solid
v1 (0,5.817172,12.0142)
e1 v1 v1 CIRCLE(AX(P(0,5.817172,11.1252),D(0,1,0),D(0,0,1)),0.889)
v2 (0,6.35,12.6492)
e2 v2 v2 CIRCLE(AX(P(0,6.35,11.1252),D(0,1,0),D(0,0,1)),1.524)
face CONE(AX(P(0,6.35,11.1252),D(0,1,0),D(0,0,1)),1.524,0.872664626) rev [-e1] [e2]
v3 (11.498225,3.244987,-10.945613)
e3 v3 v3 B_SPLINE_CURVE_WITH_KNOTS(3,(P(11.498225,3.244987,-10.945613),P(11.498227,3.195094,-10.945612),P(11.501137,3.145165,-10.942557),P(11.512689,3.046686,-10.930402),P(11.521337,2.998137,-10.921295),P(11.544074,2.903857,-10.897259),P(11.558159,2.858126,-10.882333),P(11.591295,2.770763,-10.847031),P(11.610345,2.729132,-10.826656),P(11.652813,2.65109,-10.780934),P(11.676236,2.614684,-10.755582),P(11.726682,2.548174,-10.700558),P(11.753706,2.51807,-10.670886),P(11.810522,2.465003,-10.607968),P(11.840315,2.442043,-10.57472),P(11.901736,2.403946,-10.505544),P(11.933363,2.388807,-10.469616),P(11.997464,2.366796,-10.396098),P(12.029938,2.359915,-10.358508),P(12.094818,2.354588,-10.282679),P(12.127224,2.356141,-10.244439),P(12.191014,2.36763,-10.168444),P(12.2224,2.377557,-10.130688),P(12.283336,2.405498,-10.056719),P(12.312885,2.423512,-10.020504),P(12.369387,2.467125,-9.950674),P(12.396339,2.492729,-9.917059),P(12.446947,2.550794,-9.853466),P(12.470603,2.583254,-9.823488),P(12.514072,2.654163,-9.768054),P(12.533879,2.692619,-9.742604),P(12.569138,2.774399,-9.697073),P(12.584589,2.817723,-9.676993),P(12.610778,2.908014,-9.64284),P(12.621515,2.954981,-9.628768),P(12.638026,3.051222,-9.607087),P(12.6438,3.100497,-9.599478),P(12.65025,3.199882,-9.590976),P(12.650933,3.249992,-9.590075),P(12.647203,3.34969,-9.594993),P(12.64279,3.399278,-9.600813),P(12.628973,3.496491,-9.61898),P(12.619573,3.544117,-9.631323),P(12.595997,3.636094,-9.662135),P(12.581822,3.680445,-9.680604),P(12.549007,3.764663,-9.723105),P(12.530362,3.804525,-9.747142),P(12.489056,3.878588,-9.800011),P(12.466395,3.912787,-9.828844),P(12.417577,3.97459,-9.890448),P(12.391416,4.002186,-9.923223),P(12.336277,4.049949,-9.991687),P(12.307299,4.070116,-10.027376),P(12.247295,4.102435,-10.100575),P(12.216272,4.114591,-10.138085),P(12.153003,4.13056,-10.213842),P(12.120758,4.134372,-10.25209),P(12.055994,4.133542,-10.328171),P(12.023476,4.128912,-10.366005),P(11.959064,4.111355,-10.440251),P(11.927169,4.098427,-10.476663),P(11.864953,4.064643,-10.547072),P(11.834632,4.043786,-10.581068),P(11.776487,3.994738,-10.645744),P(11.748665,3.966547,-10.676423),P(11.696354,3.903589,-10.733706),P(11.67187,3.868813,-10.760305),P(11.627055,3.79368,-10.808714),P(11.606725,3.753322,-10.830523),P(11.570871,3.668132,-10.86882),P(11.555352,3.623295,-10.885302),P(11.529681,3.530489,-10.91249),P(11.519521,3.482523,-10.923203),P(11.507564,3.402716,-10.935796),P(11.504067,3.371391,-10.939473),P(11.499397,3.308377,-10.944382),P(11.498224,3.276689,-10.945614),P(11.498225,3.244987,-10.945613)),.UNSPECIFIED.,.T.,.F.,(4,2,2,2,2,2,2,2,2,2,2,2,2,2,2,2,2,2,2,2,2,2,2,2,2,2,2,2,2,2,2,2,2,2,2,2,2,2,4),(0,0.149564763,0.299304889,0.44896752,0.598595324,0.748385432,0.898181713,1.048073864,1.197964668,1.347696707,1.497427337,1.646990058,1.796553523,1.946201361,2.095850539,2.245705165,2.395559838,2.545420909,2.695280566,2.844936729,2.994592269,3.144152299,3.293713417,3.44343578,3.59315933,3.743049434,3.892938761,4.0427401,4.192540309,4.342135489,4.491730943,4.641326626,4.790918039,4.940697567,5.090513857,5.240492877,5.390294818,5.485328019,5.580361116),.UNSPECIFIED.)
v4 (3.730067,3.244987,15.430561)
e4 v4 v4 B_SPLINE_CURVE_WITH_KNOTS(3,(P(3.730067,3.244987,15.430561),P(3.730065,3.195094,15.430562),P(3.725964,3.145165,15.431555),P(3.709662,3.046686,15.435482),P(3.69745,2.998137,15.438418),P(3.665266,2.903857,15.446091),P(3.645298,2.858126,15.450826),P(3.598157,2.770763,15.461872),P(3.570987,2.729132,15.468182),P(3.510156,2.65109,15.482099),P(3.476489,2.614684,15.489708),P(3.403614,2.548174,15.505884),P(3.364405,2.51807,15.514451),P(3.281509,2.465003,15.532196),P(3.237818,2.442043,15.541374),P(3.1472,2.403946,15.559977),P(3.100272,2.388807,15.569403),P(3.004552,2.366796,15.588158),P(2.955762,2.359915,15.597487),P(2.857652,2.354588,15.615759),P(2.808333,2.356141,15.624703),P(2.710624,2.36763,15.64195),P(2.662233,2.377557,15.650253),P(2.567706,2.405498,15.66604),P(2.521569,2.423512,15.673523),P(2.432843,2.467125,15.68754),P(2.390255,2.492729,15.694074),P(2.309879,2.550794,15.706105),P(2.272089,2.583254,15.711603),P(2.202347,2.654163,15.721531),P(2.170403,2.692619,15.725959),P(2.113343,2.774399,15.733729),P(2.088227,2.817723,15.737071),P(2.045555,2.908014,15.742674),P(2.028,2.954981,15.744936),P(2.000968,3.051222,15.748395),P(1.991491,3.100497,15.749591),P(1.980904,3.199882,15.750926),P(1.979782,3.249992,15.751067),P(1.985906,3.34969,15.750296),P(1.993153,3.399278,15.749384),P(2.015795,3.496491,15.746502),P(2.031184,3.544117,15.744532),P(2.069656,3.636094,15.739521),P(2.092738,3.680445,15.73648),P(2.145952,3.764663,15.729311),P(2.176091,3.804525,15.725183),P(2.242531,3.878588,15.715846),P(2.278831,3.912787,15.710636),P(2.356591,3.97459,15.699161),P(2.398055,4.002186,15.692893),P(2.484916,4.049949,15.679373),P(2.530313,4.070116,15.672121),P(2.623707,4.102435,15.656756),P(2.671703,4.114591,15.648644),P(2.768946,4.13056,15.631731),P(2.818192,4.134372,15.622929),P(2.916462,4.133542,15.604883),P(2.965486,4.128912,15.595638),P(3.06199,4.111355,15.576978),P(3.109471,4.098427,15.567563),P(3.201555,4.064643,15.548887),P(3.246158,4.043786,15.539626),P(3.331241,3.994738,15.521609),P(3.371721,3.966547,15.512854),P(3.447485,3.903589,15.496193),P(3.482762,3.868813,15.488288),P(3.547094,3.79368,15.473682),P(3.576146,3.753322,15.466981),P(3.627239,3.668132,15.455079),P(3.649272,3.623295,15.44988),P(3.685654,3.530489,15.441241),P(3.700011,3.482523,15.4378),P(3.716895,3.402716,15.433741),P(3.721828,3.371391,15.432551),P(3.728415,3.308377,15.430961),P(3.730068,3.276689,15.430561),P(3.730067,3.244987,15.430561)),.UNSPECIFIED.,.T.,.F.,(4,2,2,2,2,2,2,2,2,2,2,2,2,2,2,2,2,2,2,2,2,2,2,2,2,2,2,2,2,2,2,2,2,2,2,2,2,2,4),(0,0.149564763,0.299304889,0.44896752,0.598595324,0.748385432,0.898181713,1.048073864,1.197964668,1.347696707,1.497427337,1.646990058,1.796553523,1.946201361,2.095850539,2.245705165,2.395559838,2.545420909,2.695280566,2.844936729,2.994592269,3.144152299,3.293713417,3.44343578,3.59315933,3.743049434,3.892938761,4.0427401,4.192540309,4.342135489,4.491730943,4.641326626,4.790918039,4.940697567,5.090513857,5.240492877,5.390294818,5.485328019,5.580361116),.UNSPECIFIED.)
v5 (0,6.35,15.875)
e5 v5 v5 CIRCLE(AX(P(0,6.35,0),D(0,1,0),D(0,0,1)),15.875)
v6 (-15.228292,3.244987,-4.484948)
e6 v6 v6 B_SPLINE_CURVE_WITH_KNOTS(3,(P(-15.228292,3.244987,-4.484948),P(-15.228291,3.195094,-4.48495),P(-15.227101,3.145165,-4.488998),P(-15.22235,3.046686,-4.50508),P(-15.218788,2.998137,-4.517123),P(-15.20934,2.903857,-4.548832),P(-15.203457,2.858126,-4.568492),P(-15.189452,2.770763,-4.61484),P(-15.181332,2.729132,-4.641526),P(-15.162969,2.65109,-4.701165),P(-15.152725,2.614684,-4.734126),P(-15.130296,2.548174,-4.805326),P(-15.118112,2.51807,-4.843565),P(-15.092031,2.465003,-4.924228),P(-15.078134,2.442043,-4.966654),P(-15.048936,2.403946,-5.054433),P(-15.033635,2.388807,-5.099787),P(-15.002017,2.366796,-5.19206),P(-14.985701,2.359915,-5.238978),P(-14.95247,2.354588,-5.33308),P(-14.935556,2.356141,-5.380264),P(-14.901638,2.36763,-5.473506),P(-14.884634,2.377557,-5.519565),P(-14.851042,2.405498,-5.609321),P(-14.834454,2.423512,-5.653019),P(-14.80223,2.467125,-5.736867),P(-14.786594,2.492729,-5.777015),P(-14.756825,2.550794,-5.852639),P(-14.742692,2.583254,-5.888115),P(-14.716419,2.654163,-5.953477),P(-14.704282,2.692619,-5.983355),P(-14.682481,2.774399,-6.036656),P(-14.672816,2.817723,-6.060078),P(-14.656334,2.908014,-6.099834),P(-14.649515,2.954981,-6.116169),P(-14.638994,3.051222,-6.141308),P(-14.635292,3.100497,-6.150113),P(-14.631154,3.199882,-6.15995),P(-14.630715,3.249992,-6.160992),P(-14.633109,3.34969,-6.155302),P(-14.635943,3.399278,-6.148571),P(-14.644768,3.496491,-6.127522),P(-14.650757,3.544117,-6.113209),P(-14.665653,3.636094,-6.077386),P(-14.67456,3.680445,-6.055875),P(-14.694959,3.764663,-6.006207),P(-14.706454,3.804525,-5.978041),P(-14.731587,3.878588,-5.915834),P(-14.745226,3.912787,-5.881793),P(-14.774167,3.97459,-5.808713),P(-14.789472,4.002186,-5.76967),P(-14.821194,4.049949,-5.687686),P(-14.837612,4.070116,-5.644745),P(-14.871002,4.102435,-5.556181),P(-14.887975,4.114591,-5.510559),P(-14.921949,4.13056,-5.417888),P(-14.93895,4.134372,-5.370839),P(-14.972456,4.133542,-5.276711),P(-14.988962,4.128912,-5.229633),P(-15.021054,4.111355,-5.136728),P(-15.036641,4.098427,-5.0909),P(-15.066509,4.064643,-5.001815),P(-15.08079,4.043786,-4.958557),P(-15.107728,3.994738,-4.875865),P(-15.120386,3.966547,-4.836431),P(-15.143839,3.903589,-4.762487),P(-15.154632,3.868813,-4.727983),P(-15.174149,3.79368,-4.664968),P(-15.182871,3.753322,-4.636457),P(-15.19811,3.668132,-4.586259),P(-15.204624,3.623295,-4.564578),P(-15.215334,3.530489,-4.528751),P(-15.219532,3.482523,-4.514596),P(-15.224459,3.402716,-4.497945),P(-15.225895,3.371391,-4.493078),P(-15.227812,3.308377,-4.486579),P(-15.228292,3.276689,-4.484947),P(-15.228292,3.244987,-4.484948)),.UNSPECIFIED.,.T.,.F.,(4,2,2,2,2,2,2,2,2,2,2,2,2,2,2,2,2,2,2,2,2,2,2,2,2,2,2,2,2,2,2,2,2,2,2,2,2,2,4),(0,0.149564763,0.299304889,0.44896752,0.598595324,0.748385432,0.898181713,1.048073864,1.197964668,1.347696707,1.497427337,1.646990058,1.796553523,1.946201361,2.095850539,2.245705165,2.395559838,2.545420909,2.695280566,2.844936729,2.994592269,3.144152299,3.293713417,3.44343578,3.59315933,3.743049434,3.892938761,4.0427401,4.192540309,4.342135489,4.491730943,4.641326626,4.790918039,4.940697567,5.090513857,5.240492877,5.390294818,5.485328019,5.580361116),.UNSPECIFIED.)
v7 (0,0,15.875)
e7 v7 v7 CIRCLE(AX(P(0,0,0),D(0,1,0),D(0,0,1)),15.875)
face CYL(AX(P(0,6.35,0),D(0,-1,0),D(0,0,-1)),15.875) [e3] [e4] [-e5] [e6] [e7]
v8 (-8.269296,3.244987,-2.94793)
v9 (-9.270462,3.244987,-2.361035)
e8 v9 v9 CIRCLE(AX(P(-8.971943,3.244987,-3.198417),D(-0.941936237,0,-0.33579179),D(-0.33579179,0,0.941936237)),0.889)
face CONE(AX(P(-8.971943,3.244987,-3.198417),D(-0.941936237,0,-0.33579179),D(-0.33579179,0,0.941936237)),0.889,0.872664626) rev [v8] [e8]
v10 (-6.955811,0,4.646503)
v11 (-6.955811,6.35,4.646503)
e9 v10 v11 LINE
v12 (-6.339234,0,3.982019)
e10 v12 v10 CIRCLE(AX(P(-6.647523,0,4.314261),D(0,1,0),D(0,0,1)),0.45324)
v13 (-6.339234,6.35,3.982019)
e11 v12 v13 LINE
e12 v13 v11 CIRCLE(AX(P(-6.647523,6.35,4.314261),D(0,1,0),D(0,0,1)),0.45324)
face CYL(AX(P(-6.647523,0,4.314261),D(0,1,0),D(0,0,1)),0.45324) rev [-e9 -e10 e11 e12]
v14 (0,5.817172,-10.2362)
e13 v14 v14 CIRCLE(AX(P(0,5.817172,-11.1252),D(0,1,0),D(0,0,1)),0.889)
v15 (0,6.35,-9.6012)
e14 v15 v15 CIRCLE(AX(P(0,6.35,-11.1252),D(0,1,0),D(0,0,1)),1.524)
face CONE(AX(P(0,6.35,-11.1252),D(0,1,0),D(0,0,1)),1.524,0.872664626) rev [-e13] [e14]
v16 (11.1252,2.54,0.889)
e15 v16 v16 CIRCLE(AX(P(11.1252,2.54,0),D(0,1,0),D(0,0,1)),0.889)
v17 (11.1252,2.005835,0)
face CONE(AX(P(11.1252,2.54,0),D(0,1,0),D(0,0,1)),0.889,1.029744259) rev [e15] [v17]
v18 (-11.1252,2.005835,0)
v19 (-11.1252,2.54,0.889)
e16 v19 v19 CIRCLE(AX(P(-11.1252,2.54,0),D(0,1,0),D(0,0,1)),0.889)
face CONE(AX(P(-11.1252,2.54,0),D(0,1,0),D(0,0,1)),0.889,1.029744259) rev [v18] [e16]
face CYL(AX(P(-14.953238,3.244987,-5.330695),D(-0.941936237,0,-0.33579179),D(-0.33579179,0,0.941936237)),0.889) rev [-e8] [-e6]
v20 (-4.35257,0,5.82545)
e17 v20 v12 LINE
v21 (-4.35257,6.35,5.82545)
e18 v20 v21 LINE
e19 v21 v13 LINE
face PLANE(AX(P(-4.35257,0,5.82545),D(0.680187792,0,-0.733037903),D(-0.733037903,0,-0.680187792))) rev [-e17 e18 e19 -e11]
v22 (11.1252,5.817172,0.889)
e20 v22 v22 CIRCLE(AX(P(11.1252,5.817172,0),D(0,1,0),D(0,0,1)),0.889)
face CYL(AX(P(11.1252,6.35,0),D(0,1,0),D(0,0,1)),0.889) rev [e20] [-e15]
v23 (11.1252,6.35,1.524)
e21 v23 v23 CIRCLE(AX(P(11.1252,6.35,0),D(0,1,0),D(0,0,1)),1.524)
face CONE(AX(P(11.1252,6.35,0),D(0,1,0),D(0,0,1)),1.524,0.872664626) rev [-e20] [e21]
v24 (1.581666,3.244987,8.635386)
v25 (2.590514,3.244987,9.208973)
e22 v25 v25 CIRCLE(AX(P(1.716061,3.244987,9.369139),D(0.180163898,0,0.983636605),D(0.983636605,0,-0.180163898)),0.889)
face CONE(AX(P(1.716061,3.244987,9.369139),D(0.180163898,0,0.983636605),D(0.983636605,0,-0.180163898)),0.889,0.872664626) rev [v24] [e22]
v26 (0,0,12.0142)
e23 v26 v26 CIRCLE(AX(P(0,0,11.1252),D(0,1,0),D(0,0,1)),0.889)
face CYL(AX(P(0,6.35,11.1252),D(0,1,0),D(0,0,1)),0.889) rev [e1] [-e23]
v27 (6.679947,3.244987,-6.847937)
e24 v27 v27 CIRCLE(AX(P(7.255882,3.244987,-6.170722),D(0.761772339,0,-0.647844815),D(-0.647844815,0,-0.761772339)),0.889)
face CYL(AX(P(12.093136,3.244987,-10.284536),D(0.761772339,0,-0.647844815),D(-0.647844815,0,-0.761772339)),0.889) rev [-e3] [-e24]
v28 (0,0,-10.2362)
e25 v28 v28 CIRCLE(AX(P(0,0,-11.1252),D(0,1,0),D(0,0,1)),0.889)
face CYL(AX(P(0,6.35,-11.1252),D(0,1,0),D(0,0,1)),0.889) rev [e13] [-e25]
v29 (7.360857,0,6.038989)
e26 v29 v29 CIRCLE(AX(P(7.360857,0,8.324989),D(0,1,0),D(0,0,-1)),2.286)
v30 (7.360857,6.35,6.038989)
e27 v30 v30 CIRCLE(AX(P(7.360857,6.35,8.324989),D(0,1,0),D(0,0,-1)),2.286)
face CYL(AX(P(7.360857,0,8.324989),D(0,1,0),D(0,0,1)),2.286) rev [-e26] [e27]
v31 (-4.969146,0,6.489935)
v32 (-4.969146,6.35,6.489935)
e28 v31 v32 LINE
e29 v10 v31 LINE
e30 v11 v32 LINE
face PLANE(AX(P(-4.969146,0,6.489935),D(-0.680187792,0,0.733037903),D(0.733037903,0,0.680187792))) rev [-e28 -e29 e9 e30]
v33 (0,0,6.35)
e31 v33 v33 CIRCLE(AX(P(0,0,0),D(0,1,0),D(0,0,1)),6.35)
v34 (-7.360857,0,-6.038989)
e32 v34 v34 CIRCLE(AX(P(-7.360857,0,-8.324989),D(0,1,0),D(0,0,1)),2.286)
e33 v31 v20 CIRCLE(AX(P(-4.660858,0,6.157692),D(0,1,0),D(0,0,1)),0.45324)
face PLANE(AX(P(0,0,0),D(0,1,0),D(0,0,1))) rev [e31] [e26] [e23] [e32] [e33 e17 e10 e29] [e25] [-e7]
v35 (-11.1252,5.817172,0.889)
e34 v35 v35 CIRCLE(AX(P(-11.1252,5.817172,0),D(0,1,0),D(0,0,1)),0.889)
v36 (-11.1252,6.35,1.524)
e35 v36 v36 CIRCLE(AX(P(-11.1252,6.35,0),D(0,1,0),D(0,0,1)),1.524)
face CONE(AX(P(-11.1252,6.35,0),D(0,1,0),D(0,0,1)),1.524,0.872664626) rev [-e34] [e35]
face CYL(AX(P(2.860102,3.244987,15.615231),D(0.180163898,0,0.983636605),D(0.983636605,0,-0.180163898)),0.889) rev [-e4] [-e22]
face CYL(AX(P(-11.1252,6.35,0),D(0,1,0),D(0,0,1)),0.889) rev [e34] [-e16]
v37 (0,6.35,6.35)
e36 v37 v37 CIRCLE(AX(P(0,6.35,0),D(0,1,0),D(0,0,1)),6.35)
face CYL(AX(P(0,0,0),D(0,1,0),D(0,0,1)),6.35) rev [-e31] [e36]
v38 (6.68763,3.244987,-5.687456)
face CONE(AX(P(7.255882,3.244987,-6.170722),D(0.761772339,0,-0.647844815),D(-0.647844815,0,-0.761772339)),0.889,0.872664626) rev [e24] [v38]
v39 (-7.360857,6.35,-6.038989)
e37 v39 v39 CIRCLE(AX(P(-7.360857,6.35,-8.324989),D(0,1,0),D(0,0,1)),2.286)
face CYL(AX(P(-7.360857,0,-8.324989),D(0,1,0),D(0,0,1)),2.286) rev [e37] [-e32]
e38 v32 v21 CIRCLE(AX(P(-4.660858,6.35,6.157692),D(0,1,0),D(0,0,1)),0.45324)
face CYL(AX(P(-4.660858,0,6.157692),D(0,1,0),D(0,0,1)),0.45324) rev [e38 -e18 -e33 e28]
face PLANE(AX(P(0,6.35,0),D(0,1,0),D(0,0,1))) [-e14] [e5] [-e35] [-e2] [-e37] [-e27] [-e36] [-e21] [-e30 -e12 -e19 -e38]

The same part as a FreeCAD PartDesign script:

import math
import FreeCAD as App
import Part
import Sketcher
from FreeCAD import Vector
Q = App.Units.Quantity

doc = App.newDocument("Part")
body = doc.addObject("PartDesign::Body", "Body")

# Sketch on XZ plane
sketch1 = body.newObject("Sketcher::SketchObject", "Sketch")
sketch1.AttachmentSupport = (doc.getObject("XZ_Plane"), [""])
sketch1.MapMode = "FlatFace"
sketch1.addGeometry(Part.Circle(Vector(0, 0, 0), Vector(0, 0, 1), 16), False)
sketch1.addConstraint(Sketcher.Constraint("Coincident", 0, 3, -1, 1))
sketch1.addConstraint(Sketcher.Constraint("Diameter", 0, Q("1.25 in")))
pad1 = body.newObject("PartDesign::Pad", "Pad")
pad1.Profile = sketch1
pad1.Length = Q("0.25 in")
pad1.Reversed = True

# Sketch on XZ plane
sketch2 = body.newObject("Sketcher::SketchObject", "Sketch001")
sketch2.AttachmentSupport = (doc.getObject("XZ_Plane"), [""])
sketch2.MapMode = "FlatFace"
sketch2.AttachmentOffset = App.Placement(Vector(0, 0, -0.25 * 25.4), App.Rotation())
sketch2.addGeometry(Part.Circle(Vector(0, 0, 0), Vector(0, 0, 1), 6), False)
sketch2.addConstraint(Sketcher.Constraint("Coincident", 0, 3, -1, 1))
sketch2.addConstraint(Sketcher.Constraint("Diameter", 0, Q("0.5 in")))
pocket1 = body.newObject("PartDesign::Pocket", "Pocket")
pocket1.Profile = sketch2
pocket1.Type = "ThroughAll"
pocket1.Reversed = True

# Sketch on XZ plane
sketch3 = body.newObject("Sketcher::SketchObject", "Sketch002")
sketch3.AttachmentSupport = (doc.getObject("XZ_Plane"), [""])
sketch3.MapMode = "FlatFace"
sketch3.AttachmentOffset = App.Placement(Vector(0, 0, -0.25 * 25.4), App.Rotation())
sketch3.addGeometry(Part.Circle(Vector(0, -11.1, 0), Vector(0, 0, 1), 0.9), False)
sketch3.addConstraint(Sketcher.Constraint("PointOnObject", 0, 3, -2))
sketch3.addConstraint(Sketcher.Constraint("Diameter", 0, Q("0.07 in")))
sketch3.addConstraint(Sketcher.Constraint("DistanceY", 0, 3, -1, 1, Q("0.438 in")))
doc.recompute()
hole = body.newObject("PartDesign::Hole", "Hole")
hole.Profile = sketch3
hole.ThreadType = "None"
hole.Diameter = Q("0.07 in")
hole.DepthType = "ThroughAll"
hole.HoleCutType = "Countersink"
hole.HoleCutDiameter = Q("0.12 in")
hole.HoleCutCountersinkAngle = 100
hole.Reversed = True
doc.recompute()

polarpattern = body.newObject("PartDesign::PolarPattern", "PolarPattern")
polarpattern.Originals = [hole]
polarpattern.Axis = (doc.getObject("Y_Axis"), [""])
polarpattern.Angle = 360
polarpattern.Occurrences = 2
body.Tip = polarpattern

# Sketch on YZ plane
sketch4 = body.newObject("Sketcher::SketchObject", "Sketch003")
sketch4.AttachmentSupport = (doc.getObject("YZ_Plane"), [""])
sketch4.MapMode = "FlatFace"
sketch4.AttachmentOffset = App.Placement(Vector(0, 0, 0.438 * 25.4), App.Rotation())
sketch4.addGeometry(Part.LineSegment(Vector(2, 0, 0), Vector(6.3, 0, 0)), False)
sketch4.addGeometry(Part.LineSegment(Vector(6.3, 0, 0), Vector(6.3, 1.5, 0)), False)
sketch4.addGeometry(Part.LineSegment(Vector(6.3, 1.5, 0), Vector(5.8, 0.9, 0)), False)
sketch4.addGeometry(Part.LineSegment(Vector(5.8, 0.9, 0), Vector(2.5, 0.9, 0)), False)
sketch4.addGeometry(Part.LineSegment(Vector(2.5, 0.9, 0), Vector(2, 0, 0)), False)
sketch4.addConstraint(Sketcher.Constraint("Coincident", 0, 2, 1, 1))
sketch4.addConstraint(Sketcher.Constraint("Coincident", 1, 2, 2, 1))
sketch4.addConstraint(Sketcher.Constraint("Coincident", 2, 2, 3, 1))
sketch4.addConstraint(Sketcher.Constraint("Coincident", 3, 2, 4, 1))
sketch4.addConstraint(Sketcher.Constraint("Coincident", 4, 2, 0, 1))
sketch4.addConstraint(Sketcher.Constraint("Horizontal", 0))
sketch4.addConstraint(Sketcher.Constraint("Vertical", 1))
sketch4.addConstraint(Sketcher.Constraint("Horizontal", 3))
sketch4.addConstraint(Sketcher.Constraint("PointOnObject", 0, 2, -1))
sketch4.addConstraint(Sketcher.Constraint("Angle", 2, Q("-130 deg")))
sketch4.addConstraint(Sketcher.Constraint("Angle", 4, Q("-121 deg")))
sketch4.addConstraint(Sketcher.Constraint("DistanceY", 1, 1, 1, 2, Q("0.06 in")))
sketch4.addConstraint(Sketcher.Constraint("DistanceX", -1, 1, 3, 2, Q("0.1 in")))
sketch4.addConstraint(Sketcher.Constraint("DistanceX", -1, 1, 0, 2, Q("0.25 in")))
sketch4.addConstraint(Sketcher.Constraint("DistanceY", -1, 1, 2, 2, Q("0.035 in")))
groove = body.newObject("PartDesign::Groove", "Groove")
groove.Profile = sketch4
groove.ReferenceAxis = (sketch4, ["H_Axis"])
groove.Angle = 360
doc.recompute()

polarpattern2 = body.newObject("PartDesign::PolarPattern", "PolarPattern001")
polarpattern2.Originals = [groove]
polarpattern2.Axis = (doc.getObject("Y_Axis"), [""])
polarpattern2.Angle = 360
polarpattern2.Occurrences = 2
body.Tip = polarpattern2

# Sketch on XZ plane
sketch5 = body.newObject("Sketcher::SketchObject", "Sketch004")
sketch5.AttachmentSupport = (doc.getObject("XZ_Plane"), [""])
sketch5.MapMode = "FlatFace"
sketch5.AttachmentOffset = App.Placement(Vector(0, 0, -0.25 * 25.4), App.Rotation())
sketch5.addGeometry(Part.Circle(Vector(-7.4, -8.3, 0), Vector(0, 0, 1), 2.3), False)
sketch5.addConstraint(Sketcher.Constraint("Diameter", 0, Q("0.18 in")))
sketch5.addConstraint(Sketcher.Constraint("DistanceY", 0, 3, -1, 1, 8.324989))
sketch5.addConstraint(Sketcher.Constraint("DistanceX", 0, 3, -1, 1, 7.360857))
pocket2 = body.newObject("PartDesign::Pocket", "Pocket001")
pocket2.Profile = sketch5
pocket2.Type = "ThroughAll"
pocket2.Reversed = True
doc.recompute()

polarpattern3 = body.newObject("PartDesign::PolarPattern", "PolarPattern002")
polarpattern3.Originals = [pocket2]
polarpattern3.Axis = (doc.getObject("Y_Axis"), [""])
polarpattern3.Angle = 360
polarpattern3.Occurrences = 2
body.Tip = polarpattern3

# Sketch on XZ plane
sketch6 = body.newObject("Sketcher::SketchObject", "Sketch005")
sketch6.AttachmentSupport = (doc.getObject("XZ_Plane"), [""])
sketch6.MapMode = "FlatFace"
sketch6.AttachmentOffset = App.Placement(Vector(0, 0, -3.244987), App.Rotation())
sketch6.addGeometry(Part.LineSegment(Vector(6.7, -5.7, 0), Vector(12.1, -10.3, 0)), False)
sketch6.addGeometry(Part.LineSegment(Vector(12.1, -10.3, 0), Vector(11.5, -11, 0)), False)
sketch6.addGeometry(Part.LineSegment(Vector(11.5, -11, 0), Vector(6.7, -6.8, 0)), False)
sketch6.addGeometry(Part.LineSegment(Vector(6.7, -6.8, 0), Vector(6.7, -5.7, 0)), False)
sketch6.addGeometry(Part.LineSegment(Vector(12.1, -10.3, 0), Vector(6.7, -5.7, 0)), True)  # axis
sketch6.addConstraint(Sketcher.Constraint("Coincident", 0, 2, 1, 1))
sketch6.addConstraint(Sketcher.Constraint("Coincident", 1, 2, 2, 1))
sketch6.addConstraint(Sketcher.Constraint("Coincident", 2, 2, 3, 1))
sketch6.addConstraint(Sketcher.Constraint("Coincident", 3, 2, 0, 1))
sketch6.addConstraint(Sketcher.Constraint("Coincident", 4, 1, 0, 2))
sketch6.addConstraint(Sketcher.Constraint("Coincident", 4, 2, 3, 2))
sketch6.addConstraint(Sketcher.Constraint("Perpendicular", 0, 1))
sketch6.addConstraint(Sketcher.Constraint("Perpendicular", 1, 2))
sketch6.addConstraint(Sketcher.Constraint("Distance", 2, Q("0.25 in")))
sketch6.addConstraint(Sketcher.Constraint("Distance", 1, Q("0.035 in")))
sketch6.addConstraint(Sketcher.Constraint("DistanceX", -1, 1, 1, 2, 11.517202))
sketch6.addConstraint(Sketcher.Constraint("DistanceY", 0, 2, 2, 2, 3.436599))
sketch6.addConstraint(Sketcher.Constraint("Distance", 0, 7.09596))
sketch6.addConstraint(Sketcher.Constraint("DistanceY", 0, 2, -1, 1, 10.284536))
groove2 = body.newObject("PartDesign::Groove", "Groove001")
groove2.Profile = sketch6
groove2.ReferenceAxis = (sketch6, ["Axis0"])
groove2.Angle = 360
doc.recompute()

polarpattern4 = body.newObject("PartDesign::PolarPattern", "PolarPattern003")
polarpattern4.Originals = [groove2]
polarpattern4.Axis = (doc.getObject("Y_Axis"), [""])
polarpattern4.Angle = 360
polarpattern4.Occurrences = 3
body.Tip = polarpattern4

# Sketch on XZ plane
sketch7 = body.newObject("Sketcher::SketchObject", "Sketch006")
sketch7.AttachmentSupport = (doc.getObject("XZ_Plane"), [""])
sketch7.MapMode = "FlatFace"
sketch7.AttachmentOffset = App.Placement(Vector(0, 0, -0.25 * 25.4), App.Rotation())
sketch7.addGeometry(Part.LineSegment(Vector(-6.96, 4.65, 0), Vector(-4.97, 6.49, 0)), False)
sketch7.addGeometry(Part.ArcOfCircle(Part.Circle(Vector(-4.66, 6.16, 0), Vector(0, 0, 1), 0.45), math.radians(-47), math.radians(133)), False)
sketch7.addGeometry(Part.LineSegment(Vector(-4.35, 5.83, 0), Vector(-6.34, 3.98, 0)), False)
sketch7.addGeometry(Part.ArcOfCircle(Part.Circle(Vector(-6.65, 4.31, 0), Vector(0, 0, 1), 0.45), math.radians(133), math.radians(313)), False)
sketch7.addConstraint(Sketcher.Constraint("Tangent", 0, 2, 1, 2))
sketch7.addConstraint(Sketcher.Constraint("Tangent", 1, 1, 2, 1))
sketch7.addConstraint(Sketcher.Constraint("Tangent", 2, 2, 3, 2))
sketch7.addConstraint(Sketcher.Constraint("Tangent", 3, 1, 0, 1))
sketch7.addConstraint(Sketcher.Constraint("Equal", 1, 3))
sketch7.addConstraint(Sketcher.Constraint("Radius", 1, 0.45324))
sketch7.addConstraint(Sketcher.Constraint("Distance", 0, Q("0.1067 in")))
sketch7.addConstraint(Sketcher.Constraint("DistanceY", -1, 1, 3, 3, 4.314261))
sketch7.addConstraint(Sketcher.Constraint("DistanceX", 1, 1, -1, 1, 4.35257))
sketch7.addConstraint(Sketcher.Constraint("DistanceY", -1, 1, 1, 1, 5.82545))
pocket3 = body.newObject("PartDesign::Pocket", "Pocket002")
pocket3.Profile = sketch7
pocket3.Type = "ThroughAll"
pocket3.Reversed = True

doc.recompute()
